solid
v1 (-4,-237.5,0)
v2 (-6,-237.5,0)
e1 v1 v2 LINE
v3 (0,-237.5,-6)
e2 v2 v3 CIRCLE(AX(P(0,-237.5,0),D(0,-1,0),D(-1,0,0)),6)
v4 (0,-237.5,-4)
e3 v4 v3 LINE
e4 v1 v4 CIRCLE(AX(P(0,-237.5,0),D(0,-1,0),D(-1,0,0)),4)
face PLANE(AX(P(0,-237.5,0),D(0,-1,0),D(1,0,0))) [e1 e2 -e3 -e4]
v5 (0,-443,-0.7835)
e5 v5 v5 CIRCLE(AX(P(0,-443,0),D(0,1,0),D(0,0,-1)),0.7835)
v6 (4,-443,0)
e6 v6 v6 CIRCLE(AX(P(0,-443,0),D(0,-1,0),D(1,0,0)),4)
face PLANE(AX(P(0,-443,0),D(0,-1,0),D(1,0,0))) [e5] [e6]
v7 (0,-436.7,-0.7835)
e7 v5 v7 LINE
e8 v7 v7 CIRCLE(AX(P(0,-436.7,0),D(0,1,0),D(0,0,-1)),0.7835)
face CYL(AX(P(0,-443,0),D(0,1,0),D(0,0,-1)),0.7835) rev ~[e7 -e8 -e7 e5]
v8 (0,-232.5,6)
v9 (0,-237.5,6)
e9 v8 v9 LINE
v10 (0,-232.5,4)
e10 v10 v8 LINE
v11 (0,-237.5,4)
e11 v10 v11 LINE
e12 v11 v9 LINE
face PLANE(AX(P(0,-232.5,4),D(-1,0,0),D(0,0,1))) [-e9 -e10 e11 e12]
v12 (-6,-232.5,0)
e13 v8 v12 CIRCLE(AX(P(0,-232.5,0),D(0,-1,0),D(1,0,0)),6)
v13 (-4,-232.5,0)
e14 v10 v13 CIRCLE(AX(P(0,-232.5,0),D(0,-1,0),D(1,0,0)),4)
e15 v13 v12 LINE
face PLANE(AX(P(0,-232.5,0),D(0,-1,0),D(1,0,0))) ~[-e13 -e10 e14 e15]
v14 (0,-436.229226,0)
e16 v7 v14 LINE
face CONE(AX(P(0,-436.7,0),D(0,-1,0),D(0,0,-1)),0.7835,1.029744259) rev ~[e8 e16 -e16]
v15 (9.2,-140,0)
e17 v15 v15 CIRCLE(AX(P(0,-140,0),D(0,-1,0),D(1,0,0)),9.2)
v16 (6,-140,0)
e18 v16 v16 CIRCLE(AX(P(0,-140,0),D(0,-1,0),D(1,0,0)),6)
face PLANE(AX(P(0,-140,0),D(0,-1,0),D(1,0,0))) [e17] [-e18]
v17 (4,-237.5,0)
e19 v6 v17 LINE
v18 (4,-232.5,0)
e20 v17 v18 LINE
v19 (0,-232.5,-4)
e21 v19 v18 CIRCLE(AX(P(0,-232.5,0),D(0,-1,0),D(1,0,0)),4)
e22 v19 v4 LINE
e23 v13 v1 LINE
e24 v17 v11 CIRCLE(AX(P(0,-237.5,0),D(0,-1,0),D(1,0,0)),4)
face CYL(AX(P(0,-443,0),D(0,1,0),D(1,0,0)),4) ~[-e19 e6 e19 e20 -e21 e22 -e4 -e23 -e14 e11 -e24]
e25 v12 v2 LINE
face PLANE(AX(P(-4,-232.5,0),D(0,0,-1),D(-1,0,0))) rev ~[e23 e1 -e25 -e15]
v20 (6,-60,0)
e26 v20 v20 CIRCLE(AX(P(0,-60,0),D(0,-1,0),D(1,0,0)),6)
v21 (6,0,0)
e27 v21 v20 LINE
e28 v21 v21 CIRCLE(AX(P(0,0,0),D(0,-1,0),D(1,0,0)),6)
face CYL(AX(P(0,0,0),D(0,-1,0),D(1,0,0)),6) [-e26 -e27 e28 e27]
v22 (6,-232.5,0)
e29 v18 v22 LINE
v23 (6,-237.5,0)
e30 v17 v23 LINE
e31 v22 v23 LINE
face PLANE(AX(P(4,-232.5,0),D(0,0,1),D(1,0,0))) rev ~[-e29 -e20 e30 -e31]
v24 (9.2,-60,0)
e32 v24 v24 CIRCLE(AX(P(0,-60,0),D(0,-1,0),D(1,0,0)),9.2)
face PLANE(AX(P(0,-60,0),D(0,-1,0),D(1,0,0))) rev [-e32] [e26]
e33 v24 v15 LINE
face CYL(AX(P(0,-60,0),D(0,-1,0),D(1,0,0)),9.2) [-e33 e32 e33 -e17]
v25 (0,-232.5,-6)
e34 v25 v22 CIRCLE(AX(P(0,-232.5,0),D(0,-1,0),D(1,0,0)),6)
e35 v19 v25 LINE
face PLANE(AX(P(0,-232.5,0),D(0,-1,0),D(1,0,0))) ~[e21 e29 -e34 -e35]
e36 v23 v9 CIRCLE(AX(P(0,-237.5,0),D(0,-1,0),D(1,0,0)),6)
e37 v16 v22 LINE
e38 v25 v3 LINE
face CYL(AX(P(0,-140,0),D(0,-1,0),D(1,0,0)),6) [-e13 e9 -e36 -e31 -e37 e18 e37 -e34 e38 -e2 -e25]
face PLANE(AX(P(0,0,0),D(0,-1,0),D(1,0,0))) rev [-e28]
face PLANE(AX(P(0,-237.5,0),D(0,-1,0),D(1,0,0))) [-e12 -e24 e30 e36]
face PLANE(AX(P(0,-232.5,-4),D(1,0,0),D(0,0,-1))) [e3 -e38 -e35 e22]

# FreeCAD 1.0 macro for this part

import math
import FreeCAD as App
import Part
import Sketcher
from FreeCAD import Vector
Q = App.Units.Quantity

doc = App.newDocument("Part")
body = doc.addObject("PartDesign::Body", "Body")

# Sketch on XY plane
sketch1 = doc.addObject("Sketcher::SketchObject", "Sketch")
body.addObject(sketch1)
sketch1.AttachmentSupport = (doc.XY_Plane, [""])
sketch1.MapMode = "FlatFace"
sketch1.addGeometry(Part.LineSegment(Vector(6, 0, 0), Vector(0, 0, 0)), False)
sketch1.addGeometry(Part.LineSegment(Vector(0, 0, 0), Vector(0, -443, 0)), False)
sketch1.addGeometry(Part.LineSegment(Vector(0, -443, 0), Vector(4, -443, 0)), False)
sketch1.addGeometry(Part.LineSegment(Vector(4, -443, 0), Vector(4, -232.5, 0)), False)
sketch1.addGeometry(Part.LineSegment(Vector(4, -232.5, 0), Vector(6, -232.5, 0)), False)
sketch1.addGeometry(Part.LineSegment(Vector(6, -232.5, 0), Vector(6, -140, 0)), False)
sketch1.addGeometry(Part.LineSegment(Vector(6, -140, 0), Vector(9.2, -140, 0)), False)
sketch1.addGeometry(Part.LineSegment(Vector(9.2, -140, 0), Vector(9.2, -60, 0)), False)
sketch1.addGeometry(Part.LineSegment(Vector(9.2, -60, 0), Vector(6, -60, 0)), False)
sketch1.addGeometry(Part.LineSegment(Vector(6, -60, 0), Vector(6, 0, 0)), False)
sketch1.addConstraint(Sketcher.Constraint("Coincident", 0, 2, 1, 1))
sketch1.addConstraint(Sketcher.Constraint("Coincident", 1, 2, 2, 1))
sketch1.addConstraint(Sketcher.Constraint("Coincident", 2, 2, 3, 1))
sketch1.addConstraint(Sketcher.Constraint("Coincident", 3, 2, 4, 1))
sketch1.addConstraint(Sketcher.Constraint("Coincident", 4, 2, 5, 1))
sketch1.addConstraint(Sketcher.Constraint("Coincident", 5, 2, 6, 1))
sketch1.addConstraint(Sketcher.Constraint("Coincident", 6, 2, 7, 1))
sketch1.addConstraint(Sketcher.Constraint("Coincident", 7, 2, 8, 1))
sketch1.addConstraint(Sketcher.Constraint("Coincident", 8, 2, 9, 1))
sketch1.addConstraint(Sketcher.Constraint("Coincident", 9, 2, 0, 1))
sketch1.addConstraint(Sketcher.Constraint("Horizontal", 0))
sketch1.addConstraint(Sketcher.Constraint("Vertical", 1))
sketch1.addConstraint(Sketcher.Constraint("Horizontal", 2))
sketch1.addConstraint(Sketcher.Constraint("Vertical", 3))
sketch1.addConstraint(Sketcher.Constraint("Horizontal", 4))
sketch1.addConstraint(Sketcher.Constraint("Vertical", 5))
sketch1.addConstraint(Sketcher.Constraint("Horizontal", 6))
sketch1.addConstraint(Sketcher.Constraint("Vertical", 7))
sketch1.addConstraint(Sketcher.Constraint("Horizontal", 8))
sketch1.addConstraint(Sketcher.Constraint("Vertical", 9))
sketch1.addConstraint(Sketcher.Constraint("Coincident", 0, 2, -1, 1))
sketch1.addConstraint(Sketcher.Constraint("Vertical", 5, 2, 8, 2))
sketch1.addConstraint(Sketcher.Constraint("DistanceY", 1, 2, 1, 1, Q("443 mm")))
sketch1.addConstraint(Sketcher.Constraint("DistanceY", 7, 1, 7, 2, Q("80 mm")))
sketch1.addConstraint(Sketcher.Constraint("DistanceY", 9, 1, 9, 2, Q("60 mm")))
sketch1.addConstraint(Sketcher.Constraint("DistanceY", 3, 1, 3, 2, Q("210.5 mm")))
sketch1.addConstraint(Sketcher.Constraint("DistanceX", 0, 2, 0, 1, Q("6 mm")))
sketch1.addConstraint(Sketcher.Constraint("DistanceX", 2, 1, 2, 2, Q("4 mm")))
sketch1.addConstraint(Sketcher.Constraint("DistanceX", 6, 1, 6, 2, Q("3.2 mm")))
revolution = doc.addObject("PartDesign::Revolution", "Revolution")
body.addObject(revolution)
revolution.Profile = sketch1
revolution.ReferenceAxis = (sketch1, ["V_Axis"])
revolution.Angle = 360

# Sketch on XZ plane
sketch2 = doc.addObject("Sketcher::SketchObject", "Sketch001")
body.addObject(sketch2)
sketch2.AttachmentSupport = (doc.XZ_Plane, [""])
sketch2.MapMode = "FlatFace"
sketch2.AttachmentOffset = App.Placement(Vector(0, 0, 232.5), App.Rotation())
sketch2.addGeometry(Part.LineSegment(Vector(4, 0, 0), Vector(6, 0, 0)), False)
sketch2.addGeometry(Part.ArcOfCircle(Part.Circle(Vector(0, 0, 0), Vector(0, 0, 1), 6), math.radians(0), math.radians(90)), False)
sketch2.addGeometry(Part.LineSegment(Vector(0, 6, 0), Vector(0, 4, 0)), False)
sketch2.addGeometry(Part.ArcOfCircle(Part.Circle(Vector(0, 0, 0), Vector(0, 0, 1), 4), math.radians(0), math.radians(90)), False)
sketch2.addGeometry(Part.LineSegment(Vector(-4, 0, 0), Vector(-6, 0, 0)), False)
sketch2.addGeometry(Part.ArcOfCircle(Part.Circle(Vector(0, 0, 0), Vector(0, 0, 1), 6), math.radians(180), math.radians(270)), False)
sketch2.addGeometry(Part.LineSegment(Vector(0, -6, 0), Vector(0, -4, 0)), False)
sketch2.addGeometry(Part.ArcOfCircle(Part.Circle(Vector(0, 0, 0), Vector(0, 0, 1), 4), math.radians(180), math.radians(270)), False)
sketch2.addConstraint(Sketcher.Constraint("Coincident", 0, 2, 1, 1))
sketch2.addConstraint(Sketcher.Constraint("Coincident", 1, 2, 2, 1))
sketch2.addConstraint(Sketcher.Constraint("Coincident", 2, 2, 3, 2))
sketch2.addConstraint(Sketcher.Constraint("Coincident", 3, 1, 0, 1))
sketch2.addConstraint(Sketcher.Constraint("Coincident", 4, 2, 5, 1))
sketch2.addConstraint(Sketcher.Constraint("Coincident", 5, 2, 6, 1))
sketch2.addConstraint(Sketcher.Constraint("Coincident", 6, 2, 7, 2))
sketch2.addConstraint(Sketcher.Constraint("Coincident", 7, 1, 4, 1))
sketch2.addConstraint(Sketcher.Constraint("Horizontal", 0))
sketch2.addConstraint(Sketcher.Constraint("Vertical", 2))
sketch2.addConstraint(Sketcher.Constraint("Horizontal", 4))
sketch2.addConstraint(Sketcher.Constraint("Vertical", 6))
sketch2.addConstraint(Sketcher.Constraint("Coincident", 1, 3, -1, 1))
sketch2.addConstraint(Sketcher.Constraint("Coincident", 3, 3, -1, 1))
sketch2.addConstraint(Sketcher.Constraint("Coincident", 5, 3, -1, 1))
sketch2.addConstraint(Sketcher.Constraint("Coincident", 7, 3, -1, 1))
sketch2.addConstraint(Sketcher.Constraint("Equal", 1, 5))
sketch2.addConstraint(Sketcher.Constraint("Equal", 3, 7))
sketch2.addConstraint(Sketcher.Constraint("PointOnObject", 0, 2, -1))
sketch2.addConstraint(Sketcher.Constraint("PointOnObject", 1, 2, -2))
sketch2.addConstraint(Sketcher.Constraint("PointOnObject", 4, 2, -1))
sketch2.addConstraint(Sketcher.Constraint("PointOnObject", 5, 2, -2))
sketch2.addConstraint(Sketcher.Constraint("Radius", 3, Q("4 mm")))
sketch2.addConstraint(Sketcher.Constraint("Radius", 1, Q("6 mm")))
pad1 = doc.addObject("PartDesign::Pad", "Pad")
body.addObject(pad1)
pad1.Profile = sketch2
pad1.Length = 5

# Sketch on XZ plane
sketch3 = doc.addObject("Sketcher::SketchObject", "Sketch002")
body.addObject(sketch3)
sketch3.AttachmentSupport = (doc.XZ_Plane, [""])
sketch3.MapMode = "FlatFace"
sketch3.AttachmentOffset = App.Placement(Vector(0, 0, 443), App.Rotation())
sketch3.addGeometry(Part.Circle(Vector(0, 0, 0), Vector(0, 0, 1), 0.8), False)
sketch3.addConstraint(Sketcher.Constraint("Coincident", 0, 3, -1, 1))
sketch3.addConstraint(Sketcher.Constraint("Diameter", 0, Q("1.567 mm")))
doc.recompute()
hole = doc.addObject("PartDesign::Hole", "Hole")
body.addObject(hole)
hole.Profile = sketch3
hole.ThreadType = "None"
hole.Diameter = 1.567
hole.DepthType = "Dimension"
hole.Depth = 6.3
hole.DrillPoint = "Angled"
hole.DrillPointAngle = 118

doc.recompute()
